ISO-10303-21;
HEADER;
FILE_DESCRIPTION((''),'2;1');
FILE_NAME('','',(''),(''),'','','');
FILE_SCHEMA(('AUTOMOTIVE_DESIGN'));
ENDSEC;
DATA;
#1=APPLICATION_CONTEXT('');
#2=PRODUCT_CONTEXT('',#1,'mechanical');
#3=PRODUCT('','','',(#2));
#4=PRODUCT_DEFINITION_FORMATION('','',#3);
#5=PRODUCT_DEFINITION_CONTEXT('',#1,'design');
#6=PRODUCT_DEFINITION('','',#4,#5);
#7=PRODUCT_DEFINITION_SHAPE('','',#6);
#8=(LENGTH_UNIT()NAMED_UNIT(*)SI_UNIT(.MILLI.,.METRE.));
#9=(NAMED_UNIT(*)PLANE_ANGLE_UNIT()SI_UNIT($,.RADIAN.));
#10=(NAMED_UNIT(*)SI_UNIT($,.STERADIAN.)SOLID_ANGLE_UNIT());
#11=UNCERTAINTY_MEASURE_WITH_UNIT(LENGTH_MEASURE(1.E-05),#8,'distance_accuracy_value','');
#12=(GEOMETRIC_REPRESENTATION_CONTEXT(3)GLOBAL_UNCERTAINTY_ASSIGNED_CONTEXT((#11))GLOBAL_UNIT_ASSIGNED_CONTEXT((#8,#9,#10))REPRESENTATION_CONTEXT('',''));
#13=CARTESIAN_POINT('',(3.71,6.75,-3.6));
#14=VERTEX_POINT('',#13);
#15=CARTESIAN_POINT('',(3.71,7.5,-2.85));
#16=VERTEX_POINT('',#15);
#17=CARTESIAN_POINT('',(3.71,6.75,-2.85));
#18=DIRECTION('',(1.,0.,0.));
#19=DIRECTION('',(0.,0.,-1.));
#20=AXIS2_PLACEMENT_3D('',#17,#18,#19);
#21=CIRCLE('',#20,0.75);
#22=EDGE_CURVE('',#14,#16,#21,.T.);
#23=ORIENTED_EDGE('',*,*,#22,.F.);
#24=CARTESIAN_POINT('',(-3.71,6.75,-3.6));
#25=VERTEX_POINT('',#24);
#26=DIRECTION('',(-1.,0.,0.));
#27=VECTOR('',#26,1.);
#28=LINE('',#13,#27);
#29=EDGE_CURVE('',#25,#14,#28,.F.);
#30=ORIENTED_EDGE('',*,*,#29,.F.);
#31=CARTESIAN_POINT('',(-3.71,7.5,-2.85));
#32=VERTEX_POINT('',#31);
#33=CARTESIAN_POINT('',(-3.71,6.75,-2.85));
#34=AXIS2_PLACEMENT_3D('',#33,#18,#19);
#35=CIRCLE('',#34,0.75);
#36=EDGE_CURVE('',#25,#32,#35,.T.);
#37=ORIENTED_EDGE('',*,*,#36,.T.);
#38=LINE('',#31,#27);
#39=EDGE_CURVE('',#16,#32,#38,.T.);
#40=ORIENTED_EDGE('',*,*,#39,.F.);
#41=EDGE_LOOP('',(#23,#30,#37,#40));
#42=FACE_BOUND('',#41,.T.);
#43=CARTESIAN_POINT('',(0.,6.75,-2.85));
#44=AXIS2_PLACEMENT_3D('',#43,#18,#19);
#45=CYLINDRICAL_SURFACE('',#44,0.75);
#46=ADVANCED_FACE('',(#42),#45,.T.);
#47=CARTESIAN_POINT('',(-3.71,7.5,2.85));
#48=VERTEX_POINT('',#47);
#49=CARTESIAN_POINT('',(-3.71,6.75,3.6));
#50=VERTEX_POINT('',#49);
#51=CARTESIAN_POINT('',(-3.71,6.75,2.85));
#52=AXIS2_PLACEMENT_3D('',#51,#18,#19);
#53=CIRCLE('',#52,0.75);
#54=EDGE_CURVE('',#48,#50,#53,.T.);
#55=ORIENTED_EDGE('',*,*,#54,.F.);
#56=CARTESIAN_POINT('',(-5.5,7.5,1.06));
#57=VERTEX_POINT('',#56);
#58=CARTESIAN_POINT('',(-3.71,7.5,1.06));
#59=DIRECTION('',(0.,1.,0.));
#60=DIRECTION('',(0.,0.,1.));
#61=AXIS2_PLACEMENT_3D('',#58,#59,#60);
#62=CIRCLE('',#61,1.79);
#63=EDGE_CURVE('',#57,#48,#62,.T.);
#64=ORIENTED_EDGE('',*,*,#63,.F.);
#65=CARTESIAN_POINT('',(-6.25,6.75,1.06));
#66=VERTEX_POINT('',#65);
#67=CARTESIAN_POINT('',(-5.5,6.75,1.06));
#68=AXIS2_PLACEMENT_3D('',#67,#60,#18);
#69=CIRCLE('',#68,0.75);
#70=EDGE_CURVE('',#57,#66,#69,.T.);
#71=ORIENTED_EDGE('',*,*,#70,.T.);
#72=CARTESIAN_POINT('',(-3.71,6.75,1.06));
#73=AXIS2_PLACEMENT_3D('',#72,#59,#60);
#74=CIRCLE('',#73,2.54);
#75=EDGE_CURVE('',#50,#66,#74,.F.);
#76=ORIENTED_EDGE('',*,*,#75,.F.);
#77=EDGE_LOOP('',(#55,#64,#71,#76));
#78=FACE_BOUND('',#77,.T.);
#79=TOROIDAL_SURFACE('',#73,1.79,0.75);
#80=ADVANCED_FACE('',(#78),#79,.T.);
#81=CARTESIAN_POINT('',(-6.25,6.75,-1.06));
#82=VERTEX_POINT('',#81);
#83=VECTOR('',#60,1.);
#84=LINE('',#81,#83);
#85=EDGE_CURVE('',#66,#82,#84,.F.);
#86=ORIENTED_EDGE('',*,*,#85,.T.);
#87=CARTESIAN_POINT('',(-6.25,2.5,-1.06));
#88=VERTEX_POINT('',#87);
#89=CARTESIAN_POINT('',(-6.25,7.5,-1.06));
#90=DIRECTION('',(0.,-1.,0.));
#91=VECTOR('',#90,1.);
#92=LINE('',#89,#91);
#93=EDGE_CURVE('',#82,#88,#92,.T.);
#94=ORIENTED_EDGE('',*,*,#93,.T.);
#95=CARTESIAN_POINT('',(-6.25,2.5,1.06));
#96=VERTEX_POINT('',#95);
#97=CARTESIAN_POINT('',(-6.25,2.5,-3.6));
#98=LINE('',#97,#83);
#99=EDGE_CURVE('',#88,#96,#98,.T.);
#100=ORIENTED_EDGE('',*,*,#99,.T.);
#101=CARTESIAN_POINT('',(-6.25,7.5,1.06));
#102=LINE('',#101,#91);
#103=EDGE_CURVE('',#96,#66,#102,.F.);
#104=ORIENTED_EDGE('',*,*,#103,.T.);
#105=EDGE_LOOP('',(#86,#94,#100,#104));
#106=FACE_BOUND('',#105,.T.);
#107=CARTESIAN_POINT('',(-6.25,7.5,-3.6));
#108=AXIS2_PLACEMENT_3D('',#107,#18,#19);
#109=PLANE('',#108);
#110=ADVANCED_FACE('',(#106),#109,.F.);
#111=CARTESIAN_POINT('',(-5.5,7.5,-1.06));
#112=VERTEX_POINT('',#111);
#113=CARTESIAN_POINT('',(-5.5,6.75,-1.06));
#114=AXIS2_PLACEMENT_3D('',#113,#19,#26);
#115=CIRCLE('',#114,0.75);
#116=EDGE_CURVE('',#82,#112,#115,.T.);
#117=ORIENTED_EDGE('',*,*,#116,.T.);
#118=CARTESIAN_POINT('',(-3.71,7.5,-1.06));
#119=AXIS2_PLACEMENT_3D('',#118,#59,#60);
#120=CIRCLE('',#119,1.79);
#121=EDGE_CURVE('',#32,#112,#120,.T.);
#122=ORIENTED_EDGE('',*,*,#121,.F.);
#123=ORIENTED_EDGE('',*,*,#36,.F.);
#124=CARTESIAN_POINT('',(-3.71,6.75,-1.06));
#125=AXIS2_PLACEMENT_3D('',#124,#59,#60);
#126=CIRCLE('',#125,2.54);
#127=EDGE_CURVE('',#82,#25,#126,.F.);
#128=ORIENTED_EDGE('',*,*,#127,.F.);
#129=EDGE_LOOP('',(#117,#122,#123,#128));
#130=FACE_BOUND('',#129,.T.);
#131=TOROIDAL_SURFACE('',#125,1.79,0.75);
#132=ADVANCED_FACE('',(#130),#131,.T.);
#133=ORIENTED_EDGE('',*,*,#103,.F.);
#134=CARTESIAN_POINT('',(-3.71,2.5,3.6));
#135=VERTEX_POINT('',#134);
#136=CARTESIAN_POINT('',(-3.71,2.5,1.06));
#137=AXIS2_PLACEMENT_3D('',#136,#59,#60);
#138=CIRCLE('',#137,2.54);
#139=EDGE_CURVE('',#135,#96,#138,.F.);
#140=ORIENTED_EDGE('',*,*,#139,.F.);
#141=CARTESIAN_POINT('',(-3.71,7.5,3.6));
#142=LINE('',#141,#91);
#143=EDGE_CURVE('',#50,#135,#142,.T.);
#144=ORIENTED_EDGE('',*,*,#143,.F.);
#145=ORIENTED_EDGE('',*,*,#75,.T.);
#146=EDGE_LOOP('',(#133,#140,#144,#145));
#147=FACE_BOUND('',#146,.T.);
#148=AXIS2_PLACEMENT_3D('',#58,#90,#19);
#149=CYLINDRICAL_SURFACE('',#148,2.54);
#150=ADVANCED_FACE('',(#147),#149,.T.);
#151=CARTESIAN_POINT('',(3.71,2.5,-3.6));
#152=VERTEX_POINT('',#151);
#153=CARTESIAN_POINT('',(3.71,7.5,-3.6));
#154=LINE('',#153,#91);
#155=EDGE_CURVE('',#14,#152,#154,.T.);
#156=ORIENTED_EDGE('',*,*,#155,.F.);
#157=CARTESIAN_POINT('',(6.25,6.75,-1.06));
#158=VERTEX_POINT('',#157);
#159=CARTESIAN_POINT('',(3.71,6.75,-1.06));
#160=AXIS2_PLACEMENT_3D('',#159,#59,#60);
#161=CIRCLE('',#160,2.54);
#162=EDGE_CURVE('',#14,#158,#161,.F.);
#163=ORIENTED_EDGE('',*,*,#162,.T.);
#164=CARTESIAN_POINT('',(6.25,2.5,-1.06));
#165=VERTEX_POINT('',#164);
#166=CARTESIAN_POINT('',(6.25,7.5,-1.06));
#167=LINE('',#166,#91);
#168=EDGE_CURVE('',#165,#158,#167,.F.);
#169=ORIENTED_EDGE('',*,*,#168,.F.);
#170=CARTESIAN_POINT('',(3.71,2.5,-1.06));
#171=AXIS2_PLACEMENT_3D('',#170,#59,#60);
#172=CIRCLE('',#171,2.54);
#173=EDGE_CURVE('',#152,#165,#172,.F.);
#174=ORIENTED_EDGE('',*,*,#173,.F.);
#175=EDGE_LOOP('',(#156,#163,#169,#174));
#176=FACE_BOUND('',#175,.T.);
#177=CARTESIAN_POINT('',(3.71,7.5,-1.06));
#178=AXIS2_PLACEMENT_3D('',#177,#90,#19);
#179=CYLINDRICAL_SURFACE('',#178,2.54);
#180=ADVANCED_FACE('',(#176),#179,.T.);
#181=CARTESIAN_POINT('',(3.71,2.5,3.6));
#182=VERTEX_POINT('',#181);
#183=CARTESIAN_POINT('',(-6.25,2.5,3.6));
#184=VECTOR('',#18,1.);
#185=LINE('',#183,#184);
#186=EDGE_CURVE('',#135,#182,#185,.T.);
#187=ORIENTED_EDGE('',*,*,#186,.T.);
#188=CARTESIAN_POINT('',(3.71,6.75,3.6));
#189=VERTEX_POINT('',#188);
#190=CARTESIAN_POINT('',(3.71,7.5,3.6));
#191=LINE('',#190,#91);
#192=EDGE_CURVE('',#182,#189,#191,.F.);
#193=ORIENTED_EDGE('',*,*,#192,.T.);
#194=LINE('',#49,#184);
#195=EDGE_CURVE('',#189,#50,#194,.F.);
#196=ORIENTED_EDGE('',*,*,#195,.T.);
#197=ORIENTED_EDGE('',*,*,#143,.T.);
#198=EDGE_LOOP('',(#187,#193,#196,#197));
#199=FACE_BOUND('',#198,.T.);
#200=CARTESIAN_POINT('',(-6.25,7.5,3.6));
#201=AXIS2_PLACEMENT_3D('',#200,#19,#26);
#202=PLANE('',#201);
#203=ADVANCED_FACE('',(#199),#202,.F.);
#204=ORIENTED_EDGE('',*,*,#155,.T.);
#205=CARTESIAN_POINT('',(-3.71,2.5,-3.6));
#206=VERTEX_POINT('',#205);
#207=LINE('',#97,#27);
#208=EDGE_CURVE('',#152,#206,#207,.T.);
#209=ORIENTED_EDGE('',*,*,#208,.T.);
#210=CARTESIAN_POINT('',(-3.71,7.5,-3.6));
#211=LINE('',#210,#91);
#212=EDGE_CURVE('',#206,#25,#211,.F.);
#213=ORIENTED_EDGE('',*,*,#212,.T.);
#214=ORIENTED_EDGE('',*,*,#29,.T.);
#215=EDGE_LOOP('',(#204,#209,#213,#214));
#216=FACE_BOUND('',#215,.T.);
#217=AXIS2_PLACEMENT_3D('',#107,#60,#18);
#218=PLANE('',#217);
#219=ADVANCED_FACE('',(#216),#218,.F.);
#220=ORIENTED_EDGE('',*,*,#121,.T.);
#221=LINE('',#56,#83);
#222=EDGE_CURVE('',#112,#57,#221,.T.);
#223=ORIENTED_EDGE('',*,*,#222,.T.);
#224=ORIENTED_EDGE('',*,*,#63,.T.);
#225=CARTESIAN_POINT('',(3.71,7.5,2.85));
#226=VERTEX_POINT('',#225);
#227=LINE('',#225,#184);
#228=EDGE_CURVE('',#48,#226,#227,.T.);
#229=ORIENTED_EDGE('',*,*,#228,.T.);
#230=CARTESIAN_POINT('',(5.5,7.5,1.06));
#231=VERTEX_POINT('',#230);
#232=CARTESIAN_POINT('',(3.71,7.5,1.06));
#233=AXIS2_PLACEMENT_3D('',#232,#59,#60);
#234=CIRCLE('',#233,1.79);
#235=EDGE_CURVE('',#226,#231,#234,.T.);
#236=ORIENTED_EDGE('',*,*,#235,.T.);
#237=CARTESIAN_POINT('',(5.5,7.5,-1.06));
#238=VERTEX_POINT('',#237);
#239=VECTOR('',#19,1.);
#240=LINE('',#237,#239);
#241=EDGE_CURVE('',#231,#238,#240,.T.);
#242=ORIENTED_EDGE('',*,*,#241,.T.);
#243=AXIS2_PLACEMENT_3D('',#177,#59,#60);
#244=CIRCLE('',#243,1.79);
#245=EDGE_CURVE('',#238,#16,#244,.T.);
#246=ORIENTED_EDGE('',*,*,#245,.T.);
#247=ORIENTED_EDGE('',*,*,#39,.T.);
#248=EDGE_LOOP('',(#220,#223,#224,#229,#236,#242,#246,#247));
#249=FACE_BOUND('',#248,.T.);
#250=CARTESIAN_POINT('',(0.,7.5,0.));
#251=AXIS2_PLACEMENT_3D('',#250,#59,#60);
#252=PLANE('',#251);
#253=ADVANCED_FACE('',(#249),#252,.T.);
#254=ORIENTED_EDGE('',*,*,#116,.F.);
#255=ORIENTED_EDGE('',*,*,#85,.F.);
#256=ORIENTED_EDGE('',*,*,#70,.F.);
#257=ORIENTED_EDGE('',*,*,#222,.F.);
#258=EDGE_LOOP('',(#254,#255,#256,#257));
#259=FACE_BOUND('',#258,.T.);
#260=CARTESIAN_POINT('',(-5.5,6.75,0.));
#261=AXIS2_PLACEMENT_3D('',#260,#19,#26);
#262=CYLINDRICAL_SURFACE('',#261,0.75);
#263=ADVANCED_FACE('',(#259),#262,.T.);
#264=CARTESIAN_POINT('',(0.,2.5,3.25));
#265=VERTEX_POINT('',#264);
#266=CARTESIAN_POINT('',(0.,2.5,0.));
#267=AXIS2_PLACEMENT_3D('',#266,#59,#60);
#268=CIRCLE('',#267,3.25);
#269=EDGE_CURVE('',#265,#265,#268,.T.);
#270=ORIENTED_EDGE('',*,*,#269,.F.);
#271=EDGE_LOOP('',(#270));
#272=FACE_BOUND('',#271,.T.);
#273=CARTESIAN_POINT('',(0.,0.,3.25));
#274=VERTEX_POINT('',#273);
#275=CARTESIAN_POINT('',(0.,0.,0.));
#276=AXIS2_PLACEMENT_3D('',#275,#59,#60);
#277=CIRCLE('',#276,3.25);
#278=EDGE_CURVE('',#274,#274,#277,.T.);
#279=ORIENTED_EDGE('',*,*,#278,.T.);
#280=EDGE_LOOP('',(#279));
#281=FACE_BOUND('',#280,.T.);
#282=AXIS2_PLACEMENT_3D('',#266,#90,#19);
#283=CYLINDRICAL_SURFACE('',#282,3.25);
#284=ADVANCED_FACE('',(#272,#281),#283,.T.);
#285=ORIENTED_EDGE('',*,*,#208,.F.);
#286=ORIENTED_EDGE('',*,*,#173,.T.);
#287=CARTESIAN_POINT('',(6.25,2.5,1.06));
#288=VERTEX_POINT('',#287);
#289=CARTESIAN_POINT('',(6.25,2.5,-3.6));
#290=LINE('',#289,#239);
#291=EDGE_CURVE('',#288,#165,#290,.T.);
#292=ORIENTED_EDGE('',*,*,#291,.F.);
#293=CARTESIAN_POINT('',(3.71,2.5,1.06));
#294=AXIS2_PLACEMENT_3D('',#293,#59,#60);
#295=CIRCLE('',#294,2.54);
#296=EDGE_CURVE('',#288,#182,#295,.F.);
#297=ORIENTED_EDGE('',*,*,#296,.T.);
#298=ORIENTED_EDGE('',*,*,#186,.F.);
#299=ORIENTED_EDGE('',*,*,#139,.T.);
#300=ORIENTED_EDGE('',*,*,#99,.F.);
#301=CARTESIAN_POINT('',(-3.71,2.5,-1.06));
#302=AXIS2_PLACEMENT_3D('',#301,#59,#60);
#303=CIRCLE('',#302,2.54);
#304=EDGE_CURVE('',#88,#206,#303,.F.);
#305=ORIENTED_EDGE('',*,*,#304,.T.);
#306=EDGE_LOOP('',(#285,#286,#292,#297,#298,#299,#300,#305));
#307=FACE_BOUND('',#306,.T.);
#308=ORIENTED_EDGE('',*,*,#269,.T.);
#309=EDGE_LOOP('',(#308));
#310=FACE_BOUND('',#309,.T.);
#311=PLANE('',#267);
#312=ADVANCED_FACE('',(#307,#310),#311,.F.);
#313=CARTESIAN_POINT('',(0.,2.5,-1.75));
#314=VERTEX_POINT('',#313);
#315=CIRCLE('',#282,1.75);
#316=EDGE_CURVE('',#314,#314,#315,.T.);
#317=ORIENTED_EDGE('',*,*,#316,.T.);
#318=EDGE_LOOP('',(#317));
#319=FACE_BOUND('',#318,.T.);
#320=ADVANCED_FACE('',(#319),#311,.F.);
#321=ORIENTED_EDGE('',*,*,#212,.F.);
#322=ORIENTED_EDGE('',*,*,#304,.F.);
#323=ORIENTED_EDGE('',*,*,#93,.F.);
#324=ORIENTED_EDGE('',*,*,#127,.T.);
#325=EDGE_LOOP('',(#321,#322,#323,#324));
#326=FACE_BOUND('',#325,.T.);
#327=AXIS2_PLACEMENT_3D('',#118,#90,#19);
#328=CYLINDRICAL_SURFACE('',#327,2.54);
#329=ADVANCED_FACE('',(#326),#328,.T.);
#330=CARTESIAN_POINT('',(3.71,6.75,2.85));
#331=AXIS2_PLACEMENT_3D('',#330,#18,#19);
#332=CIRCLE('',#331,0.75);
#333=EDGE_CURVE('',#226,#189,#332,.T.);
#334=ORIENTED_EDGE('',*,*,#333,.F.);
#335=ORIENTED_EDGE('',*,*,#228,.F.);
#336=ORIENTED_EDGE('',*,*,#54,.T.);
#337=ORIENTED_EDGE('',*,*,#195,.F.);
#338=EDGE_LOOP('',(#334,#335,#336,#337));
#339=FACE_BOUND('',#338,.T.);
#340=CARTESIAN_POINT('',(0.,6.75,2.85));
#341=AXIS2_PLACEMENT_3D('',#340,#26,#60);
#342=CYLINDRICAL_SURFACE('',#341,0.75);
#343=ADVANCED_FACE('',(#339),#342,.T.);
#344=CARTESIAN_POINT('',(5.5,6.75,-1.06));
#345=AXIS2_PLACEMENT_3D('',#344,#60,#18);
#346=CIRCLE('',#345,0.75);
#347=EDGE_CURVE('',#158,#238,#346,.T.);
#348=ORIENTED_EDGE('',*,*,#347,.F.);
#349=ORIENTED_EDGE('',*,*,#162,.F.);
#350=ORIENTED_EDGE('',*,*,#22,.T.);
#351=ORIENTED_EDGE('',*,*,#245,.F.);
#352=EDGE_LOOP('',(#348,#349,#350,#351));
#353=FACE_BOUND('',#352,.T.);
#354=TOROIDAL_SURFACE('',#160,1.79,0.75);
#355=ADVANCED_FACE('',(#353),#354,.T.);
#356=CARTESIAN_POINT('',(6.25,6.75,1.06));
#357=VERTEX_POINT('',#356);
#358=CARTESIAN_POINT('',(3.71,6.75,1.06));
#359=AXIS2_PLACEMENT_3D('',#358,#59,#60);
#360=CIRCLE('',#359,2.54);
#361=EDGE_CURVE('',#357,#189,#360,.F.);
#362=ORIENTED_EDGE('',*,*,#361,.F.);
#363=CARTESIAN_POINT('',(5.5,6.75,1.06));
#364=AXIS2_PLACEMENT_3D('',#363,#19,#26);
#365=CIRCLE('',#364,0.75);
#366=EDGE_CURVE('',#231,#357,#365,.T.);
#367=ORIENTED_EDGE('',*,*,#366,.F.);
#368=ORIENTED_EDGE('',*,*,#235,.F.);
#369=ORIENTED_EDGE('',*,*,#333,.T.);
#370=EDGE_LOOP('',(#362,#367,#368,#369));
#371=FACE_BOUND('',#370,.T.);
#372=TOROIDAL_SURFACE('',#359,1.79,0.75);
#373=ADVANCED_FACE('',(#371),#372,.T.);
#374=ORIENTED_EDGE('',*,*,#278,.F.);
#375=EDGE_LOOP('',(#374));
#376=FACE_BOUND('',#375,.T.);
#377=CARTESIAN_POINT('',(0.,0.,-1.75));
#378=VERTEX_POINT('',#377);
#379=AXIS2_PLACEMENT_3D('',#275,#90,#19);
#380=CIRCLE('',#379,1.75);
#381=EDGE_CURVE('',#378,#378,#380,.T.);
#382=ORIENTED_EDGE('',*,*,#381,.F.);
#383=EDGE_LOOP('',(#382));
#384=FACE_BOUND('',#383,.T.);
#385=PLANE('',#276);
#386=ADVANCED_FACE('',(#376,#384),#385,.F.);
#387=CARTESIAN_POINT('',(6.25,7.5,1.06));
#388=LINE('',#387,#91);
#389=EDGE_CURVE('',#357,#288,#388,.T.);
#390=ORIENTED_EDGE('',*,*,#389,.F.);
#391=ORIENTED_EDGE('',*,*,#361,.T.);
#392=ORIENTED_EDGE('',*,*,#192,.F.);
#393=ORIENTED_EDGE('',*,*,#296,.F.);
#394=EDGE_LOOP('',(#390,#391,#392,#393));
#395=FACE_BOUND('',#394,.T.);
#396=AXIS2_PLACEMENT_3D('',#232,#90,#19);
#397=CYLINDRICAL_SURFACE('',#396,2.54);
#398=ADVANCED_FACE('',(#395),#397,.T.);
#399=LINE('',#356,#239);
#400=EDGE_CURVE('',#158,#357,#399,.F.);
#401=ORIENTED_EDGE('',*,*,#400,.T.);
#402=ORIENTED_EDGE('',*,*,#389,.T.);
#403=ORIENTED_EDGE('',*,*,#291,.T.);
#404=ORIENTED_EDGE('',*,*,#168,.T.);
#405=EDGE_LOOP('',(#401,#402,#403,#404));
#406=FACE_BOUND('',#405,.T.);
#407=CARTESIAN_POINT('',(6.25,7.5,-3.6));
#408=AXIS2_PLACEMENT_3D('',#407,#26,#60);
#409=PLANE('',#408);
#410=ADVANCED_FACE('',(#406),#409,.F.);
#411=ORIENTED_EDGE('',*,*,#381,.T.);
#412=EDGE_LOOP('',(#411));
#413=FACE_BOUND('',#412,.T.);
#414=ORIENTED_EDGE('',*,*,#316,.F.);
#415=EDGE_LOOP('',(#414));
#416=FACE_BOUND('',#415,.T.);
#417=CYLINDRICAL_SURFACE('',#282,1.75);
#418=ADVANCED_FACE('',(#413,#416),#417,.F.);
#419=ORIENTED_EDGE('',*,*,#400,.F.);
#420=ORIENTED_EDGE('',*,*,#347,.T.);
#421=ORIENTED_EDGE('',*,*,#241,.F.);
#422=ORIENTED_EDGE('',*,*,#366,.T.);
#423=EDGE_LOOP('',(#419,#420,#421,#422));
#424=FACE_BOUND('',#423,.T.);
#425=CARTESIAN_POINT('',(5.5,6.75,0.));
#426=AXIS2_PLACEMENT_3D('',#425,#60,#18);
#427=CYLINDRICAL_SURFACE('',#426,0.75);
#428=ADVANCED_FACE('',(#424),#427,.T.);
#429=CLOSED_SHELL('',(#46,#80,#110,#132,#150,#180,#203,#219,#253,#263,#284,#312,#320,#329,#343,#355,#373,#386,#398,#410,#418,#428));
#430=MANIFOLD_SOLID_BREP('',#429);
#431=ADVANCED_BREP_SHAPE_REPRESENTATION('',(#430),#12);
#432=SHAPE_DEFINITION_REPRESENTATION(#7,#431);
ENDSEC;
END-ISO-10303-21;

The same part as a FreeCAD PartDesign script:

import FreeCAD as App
import Part
import Sketcher

V = App.Vector


def edges_at(feature, points):
    """Names of the edges that pass closest to the given points."""
    edges = feature.Shape.Edges
    near = lambda p: min(range(len(edges)), key=lambda i: edges[i].distToShape(Part.Vertex(*p))[0])
    return sorted({f"Edge{near(p) + 1}" for p in points})

doc = App.newDocument("Part")
body = doc.addObject("PartDesign::Body", "Body")

# Sketch on XZ plane
sketch1 = body.newObject("Sketcher::SketchObject", "Sketch")
sketch1.AttachmentSupport = (doc.getObject("XZ_Plane"), [""])
sketch1.MapMode = "FlatFace"
sketch1.addGeometry(Part.Circle(V(0, 0, 0), V(0, 0, 1), 3.2), False)
sketch1.addConstraint([
    Sketcher.Constraint("Coincident", 0, 3, -1, 1),
    Sketcher.Constraint("Diameter", 0, 6.5),
])
pad1 = body.newObject("PartDesign::Pad", "Pad")
pad1.Profile = sketch1
pad1.Length = 2.5
pad1.Reversed = True

# Sketch on XZ plane
sketch2 = body.newObject("Sketcher::SketchObject", "Sketch001")
sketch2.AttachmentSupport = (doc.getObject("XZ_Plane"), [""])
sketch2.MapMode = "FlatFace"
sketch2.addGeometry(Part.Circle(V(0, 0, 0), V(0, 0, 1), 1.8), False)
sketch2.addConstraint([
    Sketcher.Constraint("Coincident", 0, 3, -1, 1),
    Sketcher.Constraint("Diameter", 0, 3.5),
])
pocket1 = body.newObject("PartDesign::Pocket", "Pocket")
pocket1.Profile = sketch2
pocket1.Length = 2.5

# Sketch on XZ plane
sketch3 = body.newObject("Sketcher::SketchObject", "Sketch002")
sketch3.AttachmentSupport = (doc.getObject("XZ_Plane"), [""])
sketch3.MapMode = "FlatFace"
sketch3.AttachmentOffset = App.Placement(V(0, 0, -2.5), App.Rotation())
sketch3.addGeometry([
    Part.LineSegment(V(-6, -4, 0), V(-6, 4, 0)),
    Part.LineSegment(V(-6, 4, 0), V(6, 4, 0)),
    Part.LineSegment(V(6, 4, 0), V(6, -4, 0)),
    Part.LineSegment(V(6, -4, 0), V(-6, -4, 0)),
], False)
sketch3.addConstraint([
    Sketcher.Constraint("Coincident", 0, 2, 1, 1),
    Sketcher.Constraint("Coincident", 1, 2, 2, 1),
    Sketcher.Constraint("Coincident", 2, 2, 3, 1),
    Sketcher.Constraint("Coincident", 3, 2, 0, 1),
    Sketcher.Constraint("Vertical", 0),
    Sketcher.Constraint("Horizontal", 1),
    Sketcher.Constraint("Vertical", 2),
    Sketcher.Constraint("Horizontal", 3),
    Sketcher.Constraint("Symmetric", 0, 2, 2, 2, -1, 1),
    Sketcher.Constraint("DistanceX", 1, 1, 1, 2, 12.5),
    Sketcher.Constraint("DistanceY", 0, 1, 0, 2, 7.2),
])
pad2 = body.newObject("PartDesign::Pad", "Pad001")
pad2.Profile = sketch3
pad2.Length = 5
pad2.Reversed = True
doc.recompute()

fillet = body.newObject("PartDesign::Fillet", "Fillet")
fillet.Base = (pad2, edges_at(pad2, [
    (6.25, 5, 3.6),
    (6.25, 5, -3.6),
    (-6.25, 5, -3.6),
    (-6.25, 5, 3.6),
]))
fillet.Radius = 2.54
doc.recompute()

fillet2 = body.newObject("PartDesign::Fillet", "Fillet001")
fillet2.Base = (fillet, edges_at(fillet, [
    (-6.25, 7.5, 0),
    (0, 7.5, -3.6),
    (6.25, 7.5, 0),
    (0, 7.5, 3.6),
    (-5.506, 7.5, 2.856),
    (5.506, 7.5, 2.856),
    (5.506, 7.5, -2.856),
    (-5.506, 7.5, -2.856),
]))
fillet2.Radius = 0.75

doc.recompute()
